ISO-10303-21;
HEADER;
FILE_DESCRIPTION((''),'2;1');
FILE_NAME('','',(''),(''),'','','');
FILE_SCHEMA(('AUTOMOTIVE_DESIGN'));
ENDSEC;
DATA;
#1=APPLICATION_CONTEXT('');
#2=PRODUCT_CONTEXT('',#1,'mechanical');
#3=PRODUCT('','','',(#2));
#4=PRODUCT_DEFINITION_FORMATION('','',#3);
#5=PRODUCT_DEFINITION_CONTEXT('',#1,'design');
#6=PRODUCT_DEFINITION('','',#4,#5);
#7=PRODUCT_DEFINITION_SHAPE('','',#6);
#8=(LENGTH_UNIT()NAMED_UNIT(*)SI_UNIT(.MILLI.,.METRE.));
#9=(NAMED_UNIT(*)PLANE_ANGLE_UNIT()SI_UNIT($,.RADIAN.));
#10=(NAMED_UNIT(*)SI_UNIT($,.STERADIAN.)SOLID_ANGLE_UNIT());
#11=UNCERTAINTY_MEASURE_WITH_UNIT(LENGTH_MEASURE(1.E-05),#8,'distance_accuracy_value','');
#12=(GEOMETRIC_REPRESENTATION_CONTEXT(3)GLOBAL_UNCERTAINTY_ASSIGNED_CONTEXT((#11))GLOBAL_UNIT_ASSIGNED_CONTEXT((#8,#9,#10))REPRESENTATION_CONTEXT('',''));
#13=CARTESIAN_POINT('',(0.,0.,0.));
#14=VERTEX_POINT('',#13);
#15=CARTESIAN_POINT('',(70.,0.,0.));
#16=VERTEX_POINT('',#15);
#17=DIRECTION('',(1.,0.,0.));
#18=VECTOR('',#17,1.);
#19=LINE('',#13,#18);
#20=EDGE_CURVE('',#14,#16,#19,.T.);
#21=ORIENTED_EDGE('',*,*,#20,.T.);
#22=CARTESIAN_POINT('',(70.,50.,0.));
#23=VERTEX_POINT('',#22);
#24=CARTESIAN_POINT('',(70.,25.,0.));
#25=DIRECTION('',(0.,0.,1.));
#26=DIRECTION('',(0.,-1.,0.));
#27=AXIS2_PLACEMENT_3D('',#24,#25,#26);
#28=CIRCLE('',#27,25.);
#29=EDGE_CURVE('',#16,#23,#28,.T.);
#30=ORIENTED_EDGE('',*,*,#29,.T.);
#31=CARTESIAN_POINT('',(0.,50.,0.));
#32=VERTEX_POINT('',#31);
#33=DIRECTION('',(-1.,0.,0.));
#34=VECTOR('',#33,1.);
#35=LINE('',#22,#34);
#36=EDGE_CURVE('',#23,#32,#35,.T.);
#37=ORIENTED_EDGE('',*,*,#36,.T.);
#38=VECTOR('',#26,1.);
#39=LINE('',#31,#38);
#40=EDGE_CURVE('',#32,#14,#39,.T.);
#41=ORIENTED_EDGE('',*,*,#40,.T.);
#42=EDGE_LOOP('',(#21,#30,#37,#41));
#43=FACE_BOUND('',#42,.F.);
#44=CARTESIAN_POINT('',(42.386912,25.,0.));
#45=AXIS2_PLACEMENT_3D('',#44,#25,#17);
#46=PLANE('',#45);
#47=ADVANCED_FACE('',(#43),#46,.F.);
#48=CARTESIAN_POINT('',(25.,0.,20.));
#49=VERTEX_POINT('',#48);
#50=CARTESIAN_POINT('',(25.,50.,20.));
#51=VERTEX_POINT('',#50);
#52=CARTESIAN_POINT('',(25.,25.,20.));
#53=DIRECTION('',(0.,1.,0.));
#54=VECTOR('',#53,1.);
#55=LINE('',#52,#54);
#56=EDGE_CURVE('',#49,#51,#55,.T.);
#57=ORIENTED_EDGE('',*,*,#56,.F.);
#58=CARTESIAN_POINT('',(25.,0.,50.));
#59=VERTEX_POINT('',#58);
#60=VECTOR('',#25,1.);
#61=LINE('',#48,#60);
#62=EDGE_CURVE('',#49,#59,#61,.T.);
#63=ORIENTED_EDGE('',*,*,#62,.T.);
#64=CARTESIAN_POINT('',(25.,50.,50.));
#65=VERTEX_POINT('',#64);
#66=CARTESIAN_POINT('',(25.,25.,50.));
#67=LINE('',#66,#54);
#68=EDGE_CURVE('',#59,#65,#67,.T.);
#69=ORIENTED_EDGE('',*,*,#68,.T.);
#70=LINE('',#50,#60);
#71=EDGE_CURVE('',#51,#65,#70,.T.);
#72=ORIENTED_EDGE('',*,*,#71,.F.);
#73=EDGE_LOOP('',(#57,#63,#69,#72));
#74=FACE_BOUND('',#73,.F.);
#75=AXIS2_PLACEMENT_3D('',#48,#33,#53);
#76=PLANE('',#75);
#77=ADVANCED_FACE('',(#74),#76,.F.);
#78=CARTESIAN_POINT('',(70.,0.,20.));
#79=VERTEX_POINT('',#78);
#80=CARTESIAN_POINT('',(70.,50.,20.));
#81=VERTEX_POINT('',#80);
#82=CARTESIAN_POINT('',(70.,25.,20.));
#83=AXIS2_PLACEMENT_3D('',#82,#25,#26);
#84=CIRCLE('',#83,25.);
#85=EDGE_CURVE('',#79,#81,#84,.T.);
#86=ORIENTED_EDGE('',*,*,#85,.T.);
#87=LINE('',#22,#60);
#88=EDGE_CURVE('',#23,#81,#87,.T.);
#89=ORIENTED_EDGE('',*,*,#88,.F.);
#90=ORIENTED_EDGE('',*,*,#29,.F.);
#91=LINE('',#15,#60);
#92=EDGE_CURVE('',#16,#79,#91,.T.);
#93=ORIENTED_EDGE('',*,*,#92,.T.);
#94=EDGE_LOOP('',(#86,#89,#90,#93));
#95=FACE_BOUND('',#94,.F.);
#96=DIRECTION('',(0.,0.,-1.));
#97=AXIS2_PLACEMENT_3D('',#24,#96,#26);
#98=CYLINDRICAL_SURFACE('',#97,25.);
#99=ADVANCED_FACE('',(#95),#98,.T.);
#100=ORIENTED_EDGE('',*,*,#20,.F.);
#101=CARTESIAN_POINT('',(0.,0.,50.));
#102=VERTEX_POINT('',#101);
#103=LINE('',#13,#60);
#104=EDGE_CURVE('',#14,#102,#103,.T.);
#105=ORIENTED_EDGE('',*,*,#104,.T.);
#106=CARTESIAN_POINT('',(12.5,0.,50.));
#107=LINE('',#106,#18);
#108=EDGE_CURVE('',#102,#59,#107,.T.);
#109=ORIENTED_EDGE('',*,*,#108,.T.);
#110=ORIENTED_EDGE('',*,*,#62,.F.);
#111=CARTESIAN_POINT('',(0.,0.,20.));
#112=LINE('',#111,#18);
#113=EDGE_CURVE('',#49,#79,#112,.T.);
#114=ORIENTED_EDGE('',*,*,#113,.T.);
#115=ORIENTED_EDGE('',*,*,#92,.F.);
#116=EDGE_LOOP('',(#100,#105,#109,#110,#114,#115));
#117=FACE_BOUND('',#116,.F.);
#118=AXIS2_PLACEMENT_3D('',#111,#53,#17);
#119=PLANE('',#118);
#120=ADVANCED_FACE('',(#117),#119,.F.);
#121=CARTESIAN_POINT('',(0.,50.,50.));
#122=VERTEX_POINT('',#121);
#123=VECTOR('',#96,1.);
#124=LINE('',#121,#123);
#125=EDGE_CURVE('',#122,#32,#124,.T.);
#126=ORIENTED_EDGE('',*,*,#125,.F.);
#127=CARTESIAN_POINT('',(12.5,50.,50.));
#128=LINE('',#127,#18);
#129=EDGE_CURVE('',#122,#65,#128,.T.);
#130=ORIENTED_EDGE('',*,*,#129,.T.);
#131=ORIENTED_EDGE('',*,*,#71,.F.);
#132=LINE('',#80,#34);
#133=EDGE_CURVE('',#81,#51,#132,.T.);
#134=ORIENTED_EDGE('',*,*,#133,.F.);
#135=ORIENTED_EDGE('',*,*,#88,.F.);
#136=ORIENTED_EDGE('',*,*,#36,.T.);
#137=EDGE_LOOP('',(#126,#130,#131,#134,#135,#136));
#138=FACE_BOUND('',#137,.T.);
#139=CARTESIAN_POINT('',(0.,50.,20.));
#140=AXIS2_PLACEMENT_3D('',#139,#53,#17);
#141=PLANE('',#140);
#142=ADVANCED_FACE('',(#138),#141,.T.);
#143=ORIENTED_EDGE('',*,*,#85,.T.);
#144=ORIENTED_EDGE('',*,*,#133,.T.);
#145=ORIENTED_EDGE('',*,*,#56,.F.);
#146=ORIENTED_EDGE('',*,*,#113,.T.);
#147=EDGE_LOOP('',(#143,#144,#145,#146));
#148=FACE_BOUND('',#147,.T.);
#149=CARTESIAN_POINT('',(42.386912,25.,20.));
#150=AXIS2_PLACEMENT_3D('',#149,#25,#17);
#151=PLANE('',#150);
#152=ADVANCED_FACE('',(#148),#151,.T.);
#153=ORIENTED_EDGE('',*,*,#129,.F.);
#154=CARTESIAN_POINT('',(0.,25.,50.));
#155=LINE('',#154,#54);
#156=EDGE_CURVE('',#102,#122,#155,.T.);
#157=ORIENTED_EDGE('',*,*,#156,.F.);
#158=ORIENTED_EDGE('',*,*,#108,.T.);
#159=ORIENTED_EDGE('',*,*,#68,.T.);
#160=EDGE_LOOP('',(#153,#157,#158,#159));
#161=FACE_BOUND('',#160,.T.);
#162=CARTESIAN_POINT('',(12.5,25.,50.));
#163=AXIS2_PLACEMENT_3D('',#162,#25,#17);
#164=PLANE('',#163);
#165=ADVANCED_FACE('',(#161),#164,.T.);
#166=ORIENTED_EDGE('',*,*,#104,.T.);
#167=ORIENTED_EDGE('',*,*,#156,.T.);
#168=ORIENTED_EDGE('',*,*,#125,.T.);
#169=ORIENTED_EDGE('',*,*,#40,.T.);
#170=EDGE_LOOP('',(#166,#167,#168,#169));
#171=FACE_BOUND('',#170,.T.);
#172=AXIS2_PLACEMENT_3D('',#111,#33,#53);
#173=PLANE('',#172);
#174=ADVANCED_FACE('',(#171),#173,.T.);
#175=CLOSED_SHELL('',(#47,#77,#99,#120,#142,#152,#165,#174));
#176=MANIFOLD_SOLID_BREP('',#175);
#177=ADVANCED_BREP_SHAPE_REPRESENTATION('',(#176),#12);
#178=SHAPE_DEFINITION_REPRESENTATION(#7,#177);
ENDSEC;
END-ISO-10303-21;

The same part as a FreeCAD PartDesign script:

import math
import FreeCAD as App
import Part
import Sketcher
from FreeCAD import Vector
Q = App.Units.Quantity

doc = App.newDocument("Part")
params = doc.addObject("Spreadsheet::Sheet", "Params")
for row, (alias, value) in enumerate([
    ("sketch1_radius", "25 mm"),
    ("sketch1_width", "70 mm"),
    ("pad1_length", "20 mm"),
    ("sketch2_width", "25 mm"),
    ("sketch2_height", "50 mm"),
    ("pad2_length", "30 mm"),
], start=1):
    params.set(f"A{row}", alias)
    params.set(f"B{row}", "=" + value)
    params.setAlias(f"B{row}", alias)

body = doc.addObject("PartDesign::Body", "Body")

# Sketch on XY plane
sketch1 = body.newObject("Sketcher::SketchObject", "Sketch")
sketch1.AttachmentSupport = (doc.getObject("XY_Plane"), [""])
sketch1.MapMode = "FlatFace"
sketch1.addGeometry([
    Part.LineSegment(Vector(0, 50, 0), Vector(0, 0, 0)),
    Part.LineSegment(Vector(0, 0, 0), Vector(70, 0, 0)),
    Part.ArcOfCircle(Part.Circle(Vector(70, 25, 0), Vector(0, 0, 1), 25), math.radians(-90), math.radians(90)),
    Part.LineSegment(Vector(70, 50, 0), Vector(0, 50, 0)),
], False)
sketch1.addConstraint([
    Sketcher.Constraint("Coincident", 0, 2, 1, 1),
    Sketcher.Constraint("Tangent", 1, 2, 2, 1),
    Sketcher.Constraint("Tangent", 2, 2, 3, 1),
    Sketcher.Constraint("Coincident", 3, 2, 0, 1),
    Sketcher.Constraint("Vertical", 0),
    Sketcher.Constraint("Horizontal", 1),
    Sketcher.Constraint("Horizontal", 3),
    Sketcher.Constraint("Coincident", 0, 2, -1, 1),
    Sketcher.Constraint("Radius", 2, Q("25 mm")),
    Sketcher.Constraint("DistanceX", 1, 1, 1, 2, Q("70 mm")),
])
sketch1.setExpression("Constraints[8]", "Params.sketch1_radius")
sketch1.setExpression("Constraints[9]", "Params.sketch1_width")
pad1 = body.newObject("PartDesign::Pad", "Pad")
pad1.Profile = sketch1
pad1.setExpression("Length", "Params.pad1_length")

# Sketch on XY plane
sketch2 = body.newObject("Sketcher::SketchObject", "Sketch001")
sketch2.AttachmentSupport = (doc.getObject("XY_Plane"), [""])
sketch2.MapMode = "FlatFace"
sketch2.AttachmentOffset = App.Placement(Vector(0, 0, 20), App.Rotation())
sketch2.addGeometry([
    Part.LineSegment(Vector(0, 50, 0), Vector(0, 0, 0)),
    Part.LineSegment(Vector(0, 0, 0), Vector(25, 0, 0)),
    Part.LineSegment(Vector(25, 0, 0), Vector(25, 50, 0)),
    Part.LineSegment(Vector(25, 50, 0), Vector(0, 50, 0)),
], False)
sketch2.addConstraint([
    Sketcher.Constraint("Coincident", 0, 2, 1, 1),
    Sketcher.Constraint("Coincident", 1, 2, 2, 1),
    Sketcher.Constraint("Coincident", 2, 2, 3, 1),
    Sketcher.Constraint("Coincident", 3, 2, 0, 1),
    Sketcher.Constraint("Vertical", 0),
    Sketcher.Constraint("Horizontal", 1),
    Sketcher.Constraint("Vertical", 2),
    Sketcher.Constraint("Horizontal", 3),
    Sketcher.Constraint("Coincident", 0, 2, -1, 1),
    Sketcher.Constraint("DistanceX", 1, 1, 1, 2, Q("25 mm")),
    Sketcher.Constraint("DistanceY", 0, 2, 0, 1, Q("50 mm")),
])
sketch2.setExpression("Constraints[9]", "Params.sketch2_width")
sketch2.setExpression("Constraints[10]", "Params.sketch2_height")
pad2 = body.newObject("PartDesign::Pad", "Pad001")
pad2.Profile = sketch2
pad2.setExpression("Length", "Params.pad2_length")

doc.recompute()
